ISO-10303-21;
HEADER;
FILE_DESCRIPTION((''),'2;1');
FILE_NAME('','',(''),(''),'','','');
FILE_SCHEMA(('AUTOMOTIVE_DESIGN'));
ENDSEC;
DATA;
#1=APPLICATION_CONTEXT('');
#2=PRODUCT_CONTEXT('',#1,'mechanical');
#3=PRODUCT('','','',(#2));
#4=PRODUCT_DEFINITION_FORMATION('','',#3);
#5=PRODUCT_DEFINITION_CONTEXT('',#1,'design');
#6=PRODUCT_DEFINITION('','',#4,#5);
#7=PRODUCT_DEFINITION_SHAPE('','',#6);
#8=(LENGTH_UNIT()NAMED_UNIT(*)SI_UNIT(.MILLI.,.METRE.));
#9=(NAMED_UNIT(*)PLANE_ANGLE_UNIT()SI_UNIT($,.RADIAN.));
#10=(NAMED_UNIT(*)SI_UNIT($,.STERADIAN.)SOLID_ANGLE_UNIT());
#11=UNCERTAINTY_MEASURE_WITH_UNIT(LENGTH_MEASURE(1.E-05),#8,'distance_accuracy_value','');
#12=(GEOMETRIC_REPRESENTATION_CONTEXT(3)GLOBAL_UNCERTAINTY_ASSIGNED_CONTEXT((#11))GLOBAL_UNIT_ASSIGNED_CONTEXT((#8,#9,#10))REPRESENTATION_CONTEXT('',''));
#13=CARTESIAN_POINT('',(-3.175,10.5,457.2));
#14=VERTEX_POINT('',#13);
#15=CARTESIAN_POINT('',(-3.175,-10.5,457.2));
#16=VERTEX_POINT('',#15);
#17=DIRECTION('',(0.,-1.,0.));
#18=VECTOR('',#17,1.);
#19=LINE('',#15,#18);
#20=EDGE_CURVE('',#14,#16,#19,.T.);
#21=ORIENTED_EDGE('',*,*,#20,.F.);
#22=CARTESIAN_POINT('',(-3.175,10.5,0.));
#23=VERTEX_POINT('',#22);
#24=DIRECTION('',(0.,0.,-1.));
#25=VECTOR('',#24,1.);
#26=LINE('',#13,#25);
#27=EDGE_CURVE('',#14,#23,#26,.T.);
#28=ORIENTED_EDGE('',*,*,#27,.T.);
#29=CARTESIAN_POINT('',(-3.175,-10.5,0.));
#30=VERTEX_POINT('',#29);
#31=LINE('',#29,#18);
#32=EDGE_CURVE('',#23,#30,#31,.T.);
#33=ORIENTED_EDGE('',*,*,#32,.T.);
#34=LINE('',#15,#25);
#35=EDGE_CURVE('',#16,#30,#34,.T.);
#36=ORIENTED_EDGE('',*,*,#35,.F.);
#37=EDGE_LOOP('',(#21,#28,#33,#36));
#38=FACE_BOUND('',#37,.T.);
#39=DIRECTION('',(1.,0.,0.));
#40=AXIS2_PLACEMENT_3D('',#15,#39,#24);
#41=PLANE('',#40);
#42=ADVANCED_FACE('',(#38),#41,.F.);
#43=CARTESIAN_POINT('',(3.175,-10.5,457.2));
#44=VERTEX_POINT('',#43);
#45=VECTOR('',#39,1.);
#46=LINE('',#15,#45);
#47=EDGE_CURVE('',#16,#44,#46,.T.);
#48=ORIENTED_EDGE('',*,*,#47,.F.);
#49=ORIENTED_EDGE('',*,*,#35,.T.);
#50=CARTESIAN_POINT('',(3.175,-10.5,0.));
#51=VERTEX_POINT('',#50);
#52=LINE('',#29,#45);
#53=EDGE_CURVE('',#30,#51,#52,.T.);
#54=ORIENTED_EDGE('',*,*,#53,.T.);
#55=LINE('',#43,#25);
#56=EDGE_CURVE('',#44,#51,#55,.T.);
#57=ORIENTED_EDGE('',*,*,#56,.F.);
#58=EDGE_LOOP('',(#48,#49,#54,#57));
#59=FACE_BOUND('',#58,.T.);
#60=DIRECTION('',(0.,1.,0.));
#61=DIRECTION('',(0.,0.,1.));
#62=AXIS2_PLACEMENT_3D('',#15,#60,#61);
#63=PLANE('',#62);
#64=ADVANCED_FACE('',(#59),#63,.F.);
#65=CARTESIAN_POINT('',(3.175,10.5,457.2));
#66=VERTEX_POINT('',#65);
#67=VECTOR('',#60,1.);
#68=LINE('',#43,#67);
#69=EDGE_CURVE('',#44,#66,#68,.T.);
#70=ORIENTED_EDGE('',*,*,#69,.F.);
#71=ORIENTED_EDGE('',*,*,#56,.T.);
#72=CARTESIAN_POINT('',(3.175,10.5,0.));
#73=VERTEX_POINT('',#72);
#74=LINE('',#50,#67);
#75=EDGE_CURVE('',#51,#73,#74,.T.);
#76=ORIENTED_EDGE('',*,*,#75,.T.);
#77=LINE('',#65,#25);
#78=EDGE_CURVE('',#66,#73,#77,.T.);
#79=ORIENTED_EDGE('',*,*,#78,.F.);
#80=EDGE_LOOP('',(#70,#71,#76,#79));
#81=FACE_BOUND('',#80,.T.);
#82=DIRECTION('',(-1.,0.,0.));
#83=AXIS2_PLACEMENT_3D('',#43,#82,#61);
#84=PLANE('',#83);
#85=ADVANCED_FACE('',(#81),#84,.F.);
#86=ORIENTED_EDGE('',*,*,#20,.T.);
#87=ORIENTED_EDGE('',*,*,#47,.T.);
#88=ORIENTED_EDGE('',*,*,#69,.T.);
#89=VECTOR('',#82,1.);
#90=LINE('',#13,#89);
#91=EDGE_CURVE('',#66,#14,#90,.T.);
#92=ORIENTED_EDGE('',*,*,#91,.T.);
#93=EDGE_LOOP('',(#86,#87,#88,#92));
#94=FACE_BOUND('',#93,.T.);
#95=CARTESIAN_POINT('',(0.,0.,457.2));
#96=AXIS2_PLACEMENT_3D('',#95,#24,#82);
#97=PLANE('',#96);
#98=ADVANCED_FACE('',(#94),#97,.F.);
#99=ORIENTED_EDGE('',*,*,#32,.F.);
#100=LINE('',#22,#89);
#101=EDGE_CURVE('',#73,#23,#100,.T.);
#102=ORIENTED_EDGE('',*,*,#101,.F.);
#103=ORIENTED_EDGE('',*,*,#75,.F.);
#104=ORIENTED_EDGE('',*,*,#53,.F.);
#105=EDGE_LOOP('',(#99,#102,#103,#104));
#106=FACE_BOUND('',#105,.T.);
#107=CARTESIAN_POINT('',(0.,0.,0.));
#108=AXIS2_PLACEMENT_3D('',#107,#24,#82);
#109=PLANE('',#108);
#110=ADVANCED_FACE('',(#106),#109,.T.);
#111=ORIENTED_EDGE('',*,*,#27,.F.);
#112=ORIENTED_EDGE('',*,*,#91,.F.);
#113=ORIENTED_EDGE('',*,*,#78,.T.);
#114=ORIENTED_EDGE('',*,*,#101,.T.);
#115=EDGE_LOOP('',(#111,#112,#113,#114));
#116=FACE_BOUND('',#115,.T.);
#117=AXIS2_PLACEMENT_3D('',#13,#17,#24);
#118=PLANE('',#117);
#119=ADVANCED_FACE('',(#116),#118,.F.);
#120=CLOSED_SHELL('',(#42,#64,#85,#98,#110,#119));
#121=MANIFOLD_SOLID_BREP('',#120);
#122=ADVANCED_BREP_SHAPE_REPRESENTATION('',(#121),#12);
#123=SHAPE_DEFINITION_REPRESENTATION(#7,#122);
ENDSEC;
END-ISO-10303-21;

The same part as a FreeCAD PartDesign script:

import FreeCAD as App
import Part
import Sketcher
from FreeCAD import Vector
Q = App.Units.Quantity

doc = App.newDocument("Part")
body = doc.addObject("PartDesign::Body", "Body")

# Sketch on XY plane
sketch1 = doc.addObject("Sketcher::SketchObject", "Sketch")
body.addObject(sketch1)
sketch1.AttachmentSupport = (doc.XY_Plane, [""])
sketch1.MapMode = "FlatFace"
sketch1.addGeometry([
    Part.LineSegment(Vector(-3.175, 10.5, 0), Vector(-3.175, -10.5, 0)),
    Part.LineSegment(Vector(-3.175, -10.5, 0), Vector(3.175, -10.5, 0)),
    Part.LineSegment(Vector(3.175, -10.5, 0), Vector(3.175, 10.5, 0)),
    Part.LineSegment(Vector(3.175, 10.5, 0), Vector(-3.175, 10.5, 0)),
], False)
sketch1.addConstraint([
    Sketcher.Constraint("Coincident", 0, 2, 1, 1),
    Sketcher.Constraint("Coincident", 1, 2, 2, 1),
    Sketcher.Constraint("Coincident", 2, 2, 3, 1),
    Sketcher.Constraint("Coincident", 3, 2, 0, 1),
    Sketcher.Constraint("Vertical", 0),
    Sketcher.Constraint("Horizontal", 1),
    Sketcher.Constraint("Vertical", 2),
    Sketcher.Constraint("Horizontal", 3),
    Sketcher.Constraint("Symmetric", 0, 2, 2, 2, -1, 1),
    Sketcher.Constraint("DistanceX", 1, 1, 1, 2, Q("0.25 in")),
    Sketcher.Constraint("DistanceY", 0, 2, 0, 1, Q("21 mm")),
])
pad1 = doc.addObject("PartDesign::Pad", "Pad")
body.addObject(pad1)
pad1.Profile = sketch1
pad1.Length = Q("18 in")

doc.recompute()
